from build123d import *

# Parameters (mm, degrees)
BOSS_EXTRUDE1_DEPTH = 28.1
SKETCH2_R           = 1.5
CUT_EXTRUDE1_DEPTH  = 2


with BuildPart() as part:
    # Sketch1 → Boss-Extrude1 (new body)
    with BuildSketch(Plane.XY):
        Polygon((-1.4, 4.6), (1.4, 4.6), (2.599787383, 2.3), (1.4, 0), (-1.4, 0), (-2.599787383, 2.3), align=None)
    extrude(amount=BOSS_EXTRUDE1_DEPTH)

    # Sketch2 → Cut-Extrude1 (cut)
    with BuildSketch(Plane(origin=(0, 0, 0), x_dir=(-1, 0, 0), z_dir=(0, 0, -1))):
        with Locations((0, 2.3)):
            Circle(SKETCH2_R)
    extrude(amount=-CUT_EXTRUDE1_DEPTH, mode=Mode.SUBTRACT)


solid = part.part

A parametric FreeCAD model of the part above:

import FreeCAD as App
import Part
import Sketcher


def add_polygon(sketch, points):
    """Adds a closed chain of lines whose ends are joined by coincident constraints."""
    first, n = sketch.GeometryCount, len(points)
    for a, b in zip(points, points[1:] + points[:1]):
        sketch.addGeometry(Part.LineSegment(App.Vector(*a, 0), App.Vector(*b, 0)), False)
    for i in range(n):
        sketch.addConstraint(Sketcher.Constraint("Coincident", first + i, 2, first + (i + 1) % n, 1))

doc = App.newDocument("Part")
body = doc.addObject("PartDesign::Body", "Body")

sketch1 = body.newObject("Sketcher::SketchObject", "Sketch")
sketch1.AttachmentSupport = (doc.getObject("XY_Plane"), [""])
sketch1.MapMode = "FlatFace"
add_polygon(sketch1, [(1.4, 4.6), (-1.4, 4.6), (-2.6, 2.3), (-1.4, 0), (1.4, 0), (2.6, 2.3)])
sketch1.addConstraint([
    Sketcher.Constraint("Horizontal", 0),
    Sketcher.Constraint("Horizontal", 3),
    Sketcher.Constraint("Symmetric", 2, 2, 3, 2, -1, 1),
    Sketcher.Constraint("Symmetric", 1, 2, 4, 2, -2),
    Sketcher.Constraint("Parallel", 1, 4),
    Sketcher.Constraint("Parallel", 2, 5),
    Sketcher.Constraint("Vertical", 0, 2, 2, 2),
    Sketcher.Constraint("DistanceX", 0, 2, 0, 1, 2.8),
    Sketcher.Constraint("DistanceY", -1, 1, 0, 2, 4.6),
    Sketcher.Constraint("Distance", 1, 2.594126),
])
pad1 = body.newObject("PartDesign::Pad", "Pad")
pad1.Profile = sketch1
pad1.Length = 28.1

sketch2 = body.newObject("Sketcher::SketchObject", "Sketch001")
sketch2.AttachmentSupport = (doc.getObject("XY_Plane"), [""])
sketch2.MapMode = "FlatFace"
sketch2.addGeometry(Part.Circle(App.Vector(0, 2.3, 0), App.Vector(0, 0, 1), 1.5), False)
sketch2.addConstraint([
    Sketcher.Constraint("PointOnObject", 0, 3, -2),
    Sketcher.Constraint("Diameter", 0, 3.0),
    Sketcher.Constraint("DistanceY", -1, 1, 0, 3, 2.3),
])
pocket1 = body.newObject("PartDesign::Pocket", "Pocket")
pocket1.Profile = sketch2
pocket1.Length = 2
pocket1.Reversed = True

doc.recompute()
